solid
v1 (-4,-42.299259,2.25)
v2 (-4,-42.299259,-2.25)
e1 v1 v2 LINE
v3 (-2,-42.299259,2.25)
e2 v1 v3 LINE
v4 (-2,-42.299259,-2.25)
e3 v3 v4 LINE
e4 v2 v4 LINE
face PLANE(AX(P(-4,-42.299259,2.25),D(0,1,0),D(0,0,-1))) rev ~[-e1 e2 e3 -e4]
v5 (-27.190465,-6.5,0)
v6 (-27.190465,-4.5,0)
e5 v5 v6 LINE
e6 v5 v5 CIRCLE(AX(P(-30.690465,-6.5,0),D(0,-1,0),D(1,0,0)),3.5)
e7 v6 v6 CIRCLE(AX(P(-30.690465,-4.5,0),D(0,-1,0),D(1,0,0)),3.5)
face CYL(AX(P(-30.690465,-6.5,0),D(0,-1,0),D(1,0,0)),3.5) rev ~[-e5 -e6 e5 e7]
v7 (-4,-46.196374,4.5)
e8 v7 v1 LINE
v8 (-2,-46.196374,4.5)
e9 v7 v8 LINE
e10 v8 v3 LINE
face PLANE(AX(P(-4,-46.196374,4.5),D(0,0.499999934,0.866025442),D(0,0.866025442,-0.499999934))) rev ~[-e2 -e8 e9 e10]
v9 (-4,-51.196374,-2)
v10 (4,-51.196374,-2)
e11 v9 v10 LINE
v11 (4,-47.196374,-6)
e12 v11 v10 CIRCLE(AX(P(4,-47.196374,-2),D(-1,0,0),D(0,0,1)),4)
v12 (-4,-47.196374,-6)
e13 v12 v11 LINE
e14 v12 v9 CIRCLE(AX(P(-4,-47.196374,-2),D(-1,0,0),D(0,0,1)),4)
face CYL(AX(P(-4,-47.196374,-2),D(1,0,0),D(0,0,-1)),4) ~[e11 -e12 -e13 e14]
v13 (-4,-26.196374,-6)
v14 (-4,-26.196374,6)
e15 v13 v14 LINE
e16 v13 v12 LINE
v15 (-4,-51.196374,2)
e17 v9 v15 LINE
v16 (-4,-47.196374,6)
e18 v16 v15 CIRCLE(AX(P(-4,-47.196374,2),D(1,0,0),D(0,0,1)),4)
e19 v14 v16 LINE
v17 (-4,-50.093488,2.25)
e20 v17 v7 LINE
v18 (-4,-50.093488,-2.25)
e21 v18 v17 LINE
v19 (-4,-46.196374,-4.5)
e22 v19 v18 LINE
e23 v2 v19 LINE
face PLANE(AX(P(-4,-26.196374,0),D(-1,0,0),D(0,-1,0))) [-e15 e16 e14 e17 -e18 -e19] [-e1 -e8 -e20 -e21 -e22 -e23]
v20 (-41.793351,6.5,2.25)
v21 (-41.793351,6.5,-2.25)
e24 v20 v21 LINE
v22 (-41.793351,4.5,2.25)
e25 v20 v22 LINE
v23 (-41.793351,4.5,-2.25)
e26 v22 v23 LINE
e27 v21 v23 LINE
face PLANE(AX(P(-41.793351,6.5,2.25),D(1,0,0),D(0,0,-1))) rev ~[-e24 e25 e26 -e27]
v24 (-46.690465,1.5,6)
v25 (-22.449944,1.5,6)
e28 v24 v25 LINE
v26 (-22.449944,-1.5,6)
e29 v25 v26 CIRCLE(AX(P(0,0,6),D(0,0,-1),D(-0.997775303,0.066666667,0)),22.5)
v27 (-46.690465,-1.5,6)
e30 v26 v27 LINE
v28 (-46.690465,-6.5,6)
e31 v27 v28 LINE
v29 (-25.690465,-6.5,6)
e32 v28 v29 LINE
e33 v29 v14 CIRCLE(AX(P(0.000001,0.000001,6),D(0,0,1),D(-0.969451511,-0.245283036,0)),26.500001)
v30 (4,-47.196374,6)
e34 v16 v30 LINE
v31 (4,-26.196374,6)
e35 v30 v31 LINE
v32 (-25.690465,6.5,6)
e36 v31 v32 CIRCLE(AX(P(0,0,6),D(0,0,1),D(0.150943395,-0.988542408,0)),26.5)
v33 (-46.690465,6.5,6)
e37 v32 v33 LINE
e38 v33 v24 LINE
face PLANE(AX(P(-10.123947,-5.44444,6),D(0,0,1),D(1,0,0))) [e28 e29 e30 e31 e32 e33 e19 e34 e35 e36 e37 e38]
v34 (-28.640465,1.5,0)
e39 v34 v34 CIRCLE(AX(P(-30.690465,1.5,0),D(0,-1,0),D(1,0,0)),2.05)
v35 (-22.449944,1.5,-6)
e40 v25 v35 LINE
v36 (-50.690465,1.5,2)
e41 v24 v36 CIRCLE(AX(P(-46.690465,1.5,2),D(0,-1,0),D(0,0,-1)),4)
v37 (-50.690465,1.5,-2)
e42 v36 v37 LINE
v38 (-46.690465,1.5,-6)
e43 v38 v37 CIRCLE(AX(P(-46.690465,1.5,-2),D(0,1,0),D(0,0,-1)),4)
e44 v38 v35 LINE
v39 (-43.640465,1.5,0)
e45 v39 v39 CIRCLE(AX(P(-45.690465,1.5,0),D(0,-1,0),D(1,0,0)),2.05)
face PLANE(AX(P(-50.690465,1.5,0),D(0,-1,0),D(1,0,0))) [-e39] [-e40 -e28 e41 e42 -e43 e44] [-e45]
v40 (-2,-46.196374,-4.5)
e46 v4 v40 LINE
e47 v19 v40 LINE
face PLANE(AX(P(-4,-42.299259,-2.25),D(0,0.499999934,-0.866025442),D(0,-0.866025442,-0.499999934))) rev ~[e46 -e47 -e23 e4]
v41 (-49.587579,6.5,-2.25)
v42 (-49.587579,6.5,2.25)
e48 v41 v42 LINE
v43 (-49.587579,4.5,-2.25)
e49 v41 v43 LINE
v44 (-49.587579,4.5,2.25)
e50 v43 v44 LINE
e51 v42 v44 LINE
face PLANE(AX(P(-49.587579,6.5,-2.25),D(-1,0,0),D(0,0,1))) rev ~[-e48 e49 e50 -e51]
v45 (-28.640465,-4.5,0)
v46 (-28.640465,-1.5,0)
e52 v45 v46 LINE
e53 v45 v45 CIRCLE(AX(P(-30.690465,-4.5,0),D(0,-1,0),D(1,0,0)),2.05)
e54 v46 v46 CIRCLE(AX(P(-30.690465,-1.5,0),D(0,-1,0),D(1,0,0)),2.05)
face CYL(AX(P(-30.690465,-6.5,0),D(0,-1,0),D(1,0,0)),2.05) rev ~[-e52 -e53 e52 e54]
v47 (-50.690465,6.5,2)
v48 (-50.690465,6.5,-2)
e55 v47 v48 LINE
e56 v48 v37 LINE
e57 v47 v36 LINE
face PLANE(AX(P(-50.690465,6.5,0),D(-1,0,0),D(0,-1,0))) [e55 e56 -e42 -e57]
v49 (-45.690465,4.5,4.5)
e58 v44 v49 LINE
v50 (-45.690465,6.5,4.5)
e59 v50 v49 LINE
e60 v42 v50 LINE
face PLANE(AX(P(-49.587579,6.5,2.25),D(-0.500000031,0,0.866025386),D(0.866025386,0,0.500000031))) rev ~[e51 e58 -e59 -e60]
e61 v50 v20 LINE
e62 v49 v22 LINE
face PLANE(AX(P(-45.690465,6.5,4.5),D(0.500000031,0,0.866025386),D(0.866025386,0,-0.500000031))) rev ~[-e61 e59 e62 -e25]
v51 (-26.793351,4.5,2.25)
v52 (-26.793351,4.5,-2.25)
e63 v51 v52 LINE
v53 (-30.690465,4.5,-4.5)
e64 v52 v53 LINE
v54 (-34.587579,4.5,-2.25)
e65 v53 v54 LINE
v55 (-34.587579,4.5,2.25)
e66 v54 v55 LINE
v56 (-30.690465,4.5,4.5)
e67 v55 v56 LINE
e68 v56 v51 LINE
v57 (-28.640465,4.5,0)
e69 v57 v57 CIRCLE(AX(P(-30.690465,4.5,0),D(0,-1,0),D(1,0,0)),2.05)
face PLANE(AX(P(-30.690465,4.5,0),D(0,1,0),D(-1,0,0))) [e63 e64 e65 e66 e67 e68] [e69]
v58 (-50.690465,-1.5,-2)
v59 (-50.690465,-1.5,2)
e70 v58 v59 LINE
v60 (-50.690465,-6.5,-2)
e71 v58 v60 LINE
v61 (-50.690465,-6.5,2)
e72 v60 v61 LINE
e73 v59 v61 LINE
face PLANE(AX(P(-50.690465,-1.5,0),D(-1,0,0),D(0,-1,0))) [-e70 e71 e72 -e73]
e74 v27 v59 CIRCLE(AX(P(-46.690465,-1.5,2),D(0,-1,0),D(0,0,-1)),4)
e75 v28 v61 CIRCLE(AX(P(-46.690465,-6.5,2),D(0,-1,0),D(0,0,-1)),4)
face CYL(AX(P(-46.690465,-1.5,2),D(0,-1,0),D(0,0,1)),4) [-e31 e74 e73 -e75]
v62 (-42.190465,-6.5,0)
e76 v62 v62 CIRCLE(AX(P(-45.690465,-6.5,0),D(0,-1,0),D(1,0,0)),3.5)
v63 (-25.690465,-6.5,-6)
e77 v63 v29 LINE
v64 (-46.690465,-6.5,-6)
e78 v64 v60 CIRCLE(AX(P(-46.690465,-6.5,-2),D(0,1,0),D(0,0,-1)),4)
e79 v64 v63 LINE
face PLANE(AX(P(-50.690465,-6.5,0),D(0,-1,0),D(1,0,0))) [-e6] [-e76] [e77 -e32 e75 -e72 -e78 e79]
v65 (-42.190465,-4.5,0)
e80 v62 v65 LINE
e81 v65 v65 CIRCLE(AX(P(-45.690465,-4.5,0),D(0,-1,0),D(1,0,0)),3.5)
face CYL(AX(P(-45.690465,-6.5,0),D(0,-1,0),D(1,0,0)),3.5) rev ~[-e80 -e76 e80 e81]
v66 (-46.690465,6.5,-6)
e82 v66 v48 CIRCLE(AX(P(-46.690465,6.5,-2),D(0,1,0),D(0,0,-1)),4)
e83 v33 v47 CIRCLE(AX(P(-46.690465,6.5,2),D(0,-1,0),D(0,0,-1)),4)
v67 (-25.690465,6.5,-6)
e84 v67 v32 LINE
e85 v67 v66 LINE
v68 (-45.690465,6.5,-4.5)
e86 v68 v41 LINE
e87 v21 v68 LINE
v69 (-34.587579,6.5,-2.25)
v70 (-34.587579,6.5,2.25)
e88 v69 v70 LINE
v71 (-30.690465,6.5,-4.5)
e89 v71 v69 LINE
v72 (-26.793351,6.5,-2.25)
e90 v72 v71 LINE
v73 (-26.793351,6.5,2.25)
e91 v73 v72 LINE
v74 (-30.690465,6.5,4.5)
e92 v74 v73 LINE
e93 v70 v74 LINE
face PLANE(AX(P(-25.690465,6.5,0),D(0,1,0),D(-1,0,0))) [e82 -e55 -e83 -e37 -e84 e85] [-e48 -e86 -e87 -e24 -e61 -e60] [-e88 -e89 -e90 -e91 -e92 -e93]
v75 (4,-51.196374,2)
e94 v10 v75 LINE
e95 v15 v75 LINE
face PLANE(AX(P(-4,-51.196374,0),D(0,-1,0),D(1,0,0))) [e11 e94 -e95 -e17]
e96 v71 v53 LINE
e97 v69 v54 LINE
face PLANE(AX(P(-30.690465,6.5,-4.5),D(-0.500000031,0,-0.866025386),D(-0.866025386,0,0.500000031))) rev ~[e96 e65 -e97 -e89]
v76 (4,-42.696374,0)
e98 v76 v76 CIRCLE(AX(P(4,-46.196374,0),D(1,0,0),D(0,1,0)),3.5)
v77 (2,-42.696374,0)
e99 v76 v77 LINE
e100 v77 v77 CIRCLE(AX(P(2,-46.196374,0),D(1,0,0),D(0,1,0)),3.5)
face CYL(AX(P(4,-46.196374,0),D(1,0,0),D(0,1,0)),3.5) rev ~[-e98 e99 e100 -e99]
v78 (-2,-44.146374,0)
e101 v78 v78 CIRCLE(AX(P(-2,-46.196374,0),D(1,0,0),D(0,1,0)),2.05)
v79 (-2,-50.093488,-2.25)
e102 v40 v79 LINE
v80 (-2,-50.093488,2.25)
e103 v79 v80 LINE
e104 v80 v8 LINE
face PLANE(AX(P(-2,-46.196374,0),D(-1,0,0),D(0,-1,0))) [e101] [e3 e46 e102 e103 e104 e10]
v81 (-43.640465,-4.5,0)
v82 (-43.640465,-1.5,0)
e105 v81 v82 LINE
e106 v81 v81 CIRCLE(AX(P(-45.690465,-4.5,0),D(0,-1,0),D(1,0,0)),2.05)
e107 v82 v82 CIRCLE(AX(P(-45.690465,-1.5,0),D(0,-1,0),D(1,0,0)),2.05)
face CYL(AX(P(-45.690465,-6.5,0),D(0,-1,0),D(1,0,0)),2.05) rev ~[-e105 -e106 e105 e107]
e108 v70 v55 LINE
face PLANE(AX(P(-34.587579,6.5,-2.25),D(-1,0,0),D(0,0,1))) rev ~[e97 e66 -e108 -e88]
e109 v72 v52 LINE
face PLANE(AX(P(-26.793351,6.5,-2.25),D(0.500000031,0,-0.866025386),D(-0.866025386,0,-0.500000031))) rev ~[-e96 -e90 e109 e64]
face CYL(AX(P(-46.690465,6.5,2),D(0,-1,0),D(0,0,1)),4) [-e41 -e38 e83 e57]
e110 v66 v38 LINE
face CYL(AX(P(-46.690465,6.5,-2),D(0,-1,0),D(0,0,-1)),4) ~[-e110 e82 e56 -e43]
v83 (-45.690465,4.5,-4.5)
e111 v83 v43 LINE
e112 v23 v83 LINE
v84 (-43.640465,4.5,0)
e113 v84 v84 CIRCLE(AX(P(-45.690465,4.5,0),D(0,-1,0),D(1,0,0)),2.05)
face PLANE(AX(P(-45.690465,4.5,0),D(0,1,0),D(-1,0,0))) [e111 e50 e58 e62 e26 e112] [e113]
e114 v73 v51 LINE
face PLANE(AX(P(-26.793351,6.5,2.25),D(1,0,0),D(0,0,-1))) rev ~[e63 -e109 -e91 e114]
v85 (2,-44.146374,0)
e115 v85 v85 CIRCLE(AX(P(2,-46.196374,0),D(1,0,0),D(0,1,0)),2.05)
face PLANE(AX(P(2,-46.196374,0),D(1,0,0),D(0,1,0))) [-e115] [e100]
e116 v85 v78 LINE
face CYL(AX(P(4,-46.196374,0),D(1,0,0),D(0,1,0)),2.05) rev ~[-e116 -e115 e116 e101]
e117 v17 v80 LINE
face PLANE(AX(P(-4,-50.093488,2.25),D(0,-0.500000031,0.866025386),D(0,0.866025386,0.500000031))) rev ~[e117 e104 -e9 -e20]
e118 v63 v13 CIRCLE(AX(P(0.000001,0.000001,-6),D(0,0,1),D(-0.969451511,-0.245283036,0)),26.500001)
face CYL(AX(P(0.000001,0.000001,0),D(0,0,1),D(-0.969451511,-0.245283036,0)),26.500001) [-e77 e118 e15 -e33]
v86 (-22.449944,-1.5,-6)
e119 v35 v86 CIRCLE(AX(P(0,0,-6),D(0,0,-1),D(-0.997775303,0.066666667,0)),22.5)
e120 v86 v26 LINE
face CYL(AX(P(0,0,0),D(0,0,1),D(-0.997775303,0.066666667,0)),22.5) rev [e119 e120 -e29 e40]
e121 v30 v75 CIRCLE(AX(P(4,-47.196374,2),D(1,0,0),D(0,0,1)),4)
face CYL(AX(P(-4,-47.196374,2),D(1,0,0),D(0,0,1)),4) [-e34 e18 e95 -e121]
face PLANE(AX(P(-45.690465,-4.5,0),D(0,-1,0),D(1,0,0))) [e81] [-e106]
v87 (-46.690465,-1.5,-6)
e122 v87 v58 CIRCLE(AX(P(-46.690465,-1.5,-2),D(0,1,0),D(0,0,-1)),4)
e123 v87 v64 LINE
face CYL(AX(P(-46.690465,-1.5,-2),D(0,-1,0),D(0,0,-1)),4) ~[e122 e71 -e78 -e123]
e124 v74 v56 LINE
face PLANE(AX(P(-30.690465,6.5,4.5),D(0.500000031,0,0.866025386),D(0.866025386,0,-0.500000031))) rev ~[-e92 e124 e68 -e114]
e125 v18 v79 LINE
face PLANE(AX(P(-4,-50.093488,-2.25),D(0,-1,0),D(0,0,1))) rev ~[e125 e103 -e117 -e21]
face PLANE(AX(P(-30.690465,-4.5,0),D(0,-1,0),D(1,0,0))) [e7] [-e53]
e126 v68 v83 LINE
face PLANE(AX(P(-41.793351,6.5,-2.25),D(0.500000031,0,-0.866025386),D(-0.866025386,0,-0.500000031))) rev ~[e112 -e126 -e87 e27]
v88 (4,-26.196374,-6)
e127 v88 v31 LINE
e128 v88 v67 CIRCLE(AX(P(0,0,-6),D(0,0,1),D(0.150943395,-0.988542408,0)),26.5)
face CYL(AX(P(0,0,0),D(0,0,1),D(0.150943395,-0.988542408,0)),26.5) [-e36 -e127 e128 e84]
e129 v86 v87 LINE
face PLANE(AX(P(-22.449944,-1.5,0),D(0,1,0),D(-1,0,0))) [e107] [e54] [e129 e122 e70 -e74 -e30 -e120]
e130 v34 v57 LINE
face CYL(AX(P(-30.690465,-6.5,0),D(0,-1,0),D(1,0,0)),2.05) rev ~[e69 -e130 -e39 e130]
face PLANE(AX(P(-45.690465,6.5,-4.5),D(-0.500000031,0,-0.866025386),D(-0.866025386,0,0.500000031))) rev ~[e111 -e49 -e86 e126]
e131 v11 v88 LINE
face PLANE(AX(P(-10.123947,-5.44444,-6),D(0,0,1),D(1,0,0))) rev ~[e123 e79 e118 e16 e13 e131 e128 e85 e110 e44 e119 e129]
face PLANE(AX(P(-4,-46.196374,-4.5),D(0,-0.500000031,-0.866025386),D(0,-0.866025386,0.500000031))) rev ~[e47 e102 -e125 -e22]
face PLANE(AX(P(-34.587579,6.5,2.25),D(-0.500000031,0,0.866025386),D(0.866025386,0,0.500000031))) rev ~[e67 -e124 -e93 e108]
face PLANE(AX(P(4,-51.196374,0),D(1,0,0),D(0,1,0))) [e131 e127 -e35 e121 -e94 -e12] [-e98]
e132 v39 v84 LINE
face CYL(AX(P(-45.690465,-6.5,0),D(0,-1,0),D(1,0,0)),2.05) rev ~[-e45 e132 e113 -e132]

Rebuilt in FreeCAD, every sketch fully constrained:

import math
import FreeCAD as App
import Part
import Sketcher
from FreeCAD import Vector
Q = App.Units.Quantity


def edges_at(feature, points):
    """Names of the edges that pass closest to the given points."""
    edges = feature.Shape.Edges
    near = lambda p: min(range(len(edges)), key=lambda i: edges[i].distToShape(Part.Vertex(*p))[0])
    return sorted({f"Edge{near(p) + 1}" for p in points})


def add_polygon(sketch, points):
    """Adds a closed chain of lines whose ends are joined by coincident constraints."""
    first, n = sketch.GeometryCount, len(points)
    for a, b in zip(points, points[1:] + points[:1]):
        sketch.addGeometry(Part.LineSegment(App.Vector(*a, 0), App.Vector(*b, 0)), False)
    for i in range(n):
        sketch.addConstraint(Sketcher.Constraint("Coincident", first + i, 2, first + (i + 1) % n, 1))

doc = App.newDocument("Part")
body = doc.addObject("PartDesign::Body", "Body")

# Sketch on XY plane
sketch1 = body.newObject("Sketcher::SketchObject", "Sketch")
sketch1.AttachmentSupport = (doc.getObject("XY_Plane"), [""])
sketch1.MapMode = "FlatFace"
sketch1.addGeometry([
    Part.ArcOfCircle(Part.Circle(Vector(0, 0, 0), Vector(0, 0, 1), 22.5), math.radians(-176), math.radians(176)),  # 0
    Part.LineSegment(Vector(-22.4, -1.5, 0), Vector(-50.7, -1.5, 0)),  # 1
    Part.LineSegment(Vector(-50.7, -1.5, 0), Vector(-50.7, -6.5, 0)),  # 2
    Part.LineSegment(Vector(-50.7, -6.5, 0), Vector(-25.7, -6.5, 0)),  # 3
    Part.ArcOfCircle(Part.Circle(Vector(0, 0, 0), Vector(0, 0, 1), 26.5), math.radians(-166), math.radians(-99)),  # 4
    Part.LineSegment(Vector(-4, -26.2, 0), Vector(-4, -51.2, 0)),  # 5
    Part.LineSegment(Vector(-4, -51.2, 0), Vector(4, -51.2, 0)),  # 6
    Part.LineSegment(Vector(4, -51.2, 0), Vector(4, -26.2, 0)),  # 7
    Part.ArcOfCircle(Part.Circle(Vector(0, 0, 0), Vector(0, 0, 1), 26.5), math.radians(-81), math.radians(166)),  # 8
    Part.LineSegment(Vector(-25.7, 6.5, 0), Vector(-50.7, 6.5, 0)),  # 9
    Part.LineSegment(Vector(-50.7, 6.5, 0), Vector(-50.7, 1.5, 0)),  # 10
    Part.LineSegment(Vector(-50.7, 1.5, 0), Vector(-22.4, 1.5, 0)),  # 11
], False)
sketch1.addConstraint([
    Sketcher.Constraint("Coincident", 0, 1, 1, 1),
    Sketcher.Constraint("Coincident", 1, 2, 2, 1),
    Sketcher.Constraint("Coincident", 2, 2, 3, 1),
    Sketcher.Constraint("Coincident", 3, 2, 4, 1),
    Sketcher.Constraint("Coincident", 4, 2, 5, 1),
    Sketcher.Constraint("Coincident", 5, 2, 6, 1),
    Sketcher.Constraint("Coincident", 6, 2, 7, 1),
    Sketcher.Constraint("Coincident", 7, 2, 8, 1),
    Sketcher.Constraint("Coincident", 8, 2, 9, 1),
    Sketcher.Constraint("Coincident", 9, 2, 10, 1),
    Sketcher.Constraint("Coincident", 10, 2, 11, 1),
    Sketcher.Constraint("Coincident", 11, 2, 0, 2),
    Sketcher.Constraint("Horizontal", 1),
    Sketcher.Constraint("Vertical", 2),
    Sketcher.Constraint("Horizontal", 3),
    Sketcher.Constraint("Vertical", 5),
    Sketcher.Constraint("Horizontal", 6),
    Sketcher.Constraint("Vertical", 7),
    Sketcher.Constraint("Horizontal", 9),
    Sketcher.Constraint("Vertical", 10),
    Sketcher.Constraint("Horizontal", 11),
    Sketcher.Constraint("Coincident", 0, 3, -1, 1),
    Sketcher.Constraint("Coincident", 4, 3, -1, 1),
    Sketcher.Constraint("Coincident", 8, 3, -1, 1),
    Sketcher.Constraint("Equal", 4, 8),
    Sketcher.Constraint("Symmetric", 2, 2, 9, 2, -1),
    Sketcher.Constraint("Horizontal", 4, 2, 7, 2),
    Sketcher.Constraint("Vertical", 0, 1, 11, 2),
    Sketcher.Constraint("Equal", 9, 5),
    Sketcher.Constraint("Radius", 0, 22.5),
    Sketcher.Constraint("Radius", 4, 26.500001),
    Sketcher.Constraint("DistanceX", 3, 1, 3, 2, 25.0),
    Sketcher.Constraint("DistanceX", 6, 1, 6, 2, 8.0),
    Sketcher.Constraint("DistanceY", 2, 2, 2, 1, 5.0),
    Sketcher.Constraint("DistanceY", 0, 1, 8, 2, 8.0),
])
pad1 = body.newObject("PartDesign::Pad", "Pad")
pad1.Profile = sketch1
pad1.Length = 12
pad1.Midplane = True

# Sketch on YZ plane
sketch2 = body.newObject("Sketcher::SketchObject", "Sketch001")
sketch2.AttachmentSupport = (doc.getObject("YZ_Plane"), [""])
sketch2.MapMode = "FlatFace"
sketch2.AttachmentOffset = App.Placement(Vector(0, 0, -4), App.Rotation())
add_polygon(sketch2, [(-50.1, -2.2), (-50.1, 2.2), (-46.2, 4.5), (-42.3, 2.2), (-42.3, -2.2), (-46.2, -4.5)])  # lines 0-5
sketch2.addConstraint([
    Sketcher.Constraint("Vertical", 0),
    Sketcher.Constraint("Vertical", 3),
    Sketcher.Constraint("Symmetric", 1, 2, 4, 2, -1),
    Sketcher.Constraint("Parallel", 1, 4),
    Sketcher.Constraint("Parallel", 2, 5),
    Sketcher.Constraint("Horizontal", 0, 2, 2, 2),
    Sketcher.Constraint("Horizontal", 3, 2, 5, 2),
    Sketcher.Constraint("Angle", 1, Q("30.000002 deg")),
    Sketcher.Constraint("DistanceY", 0, 1, 0, 2, 4.5),
    Sketcher.Constraint("DistanceY", 4, 2, 1, 2, 9.0),
    Sketcher.Constraint("DistanceX", 2, 2, -1, 1, 42.299259),
])
pocket1 = body.newObject("PartDesign::Pocket", "Pocket")
pocket1.Profile = sketch2
pocket1.Length = 2
pocket1.Reversed = True

# Sketch on XZ plane
sketch3 = body.newObject("Sketcher::SketchObject", "Sketch002")
sketch3.AttachmentSupport = (doc.getObject("XZ_Plane"), [""])
sketch3.MapMode = "FlatFace"
sketch3.AttachmentOffset = App.Placement(Vector(0, 0, -6.5), App.Rotation())
add_polygon(sketch3, [(-49.6, -2.2), (-49.6, 2.2), (-45.7, 4.5), (-41.8, 2.2), (-41.8, -2.2), (-45.7, -4.5)])  # lines 0-5
add_polygon(sketch3, [(-34.6, 2.2), (-30.7, 4.5), (-26.8, 2.2), (-26.8, -2.2), (-30.7, -4.5), (-34.6, -2.2)])  # lines 6-11
sketch3.addConstraint([
    Sketcher.Constraint("Vertical", 0),
    Sketcher.Constraint("Vertical", 3),
    Sketcher.Constraint("Vertical", 8),
    Sketcher.Constraint("Vertical", 11),
    Sketcher.Constraint("Symmetric", 1, 2, 4, 2, -1),
    Sketcher.Constraint("Symmetric", 6, 2, 9, 2, -1),
    Sketcher.Constraint("Parallel", 1, 4),
    Sketcher.Constraint("Parallel", 2, 5),
    Sketcher.Constraint("Parallel", 4, 6),
    Sketcher.Constraint("Parallel", 5, 7),
    Sketcher.Constraint("Parallel", 6, 9),
    Sketcher.Constraint("Parallel", 7, 10),
    Sketcher.Constraint("Horizontal", 0, 2, 2, 2),
    Sketcher.Constraint("Horizontal", 3, 2, 5, 2),
    Sketcher.Constraint("Horizontal", 1, 2, 6, 2),
    Sketcher.Constraint("Horizontal", 2, 2, 7, 2),
    Sketcher.Constraint("Horizontal", 8, 2, 10, 2),
    Sketcher.Constraint("Angle", 1, Q("30.000002 deg")),
    Sketcher.Constraint("DistanceY", 0, 1, 0, 2, 4.5),
    Sketcher.Constraint("DistanceY", 4, 2, 1, 2, 9.0),
    Sketcher.Constraint("DistanceX", 1, 2, 6, 2, 15.0),
    Sketcher.Constraint("DistanceX", 0, 2, -1, 1, 49.587579),
])
pocket2 = body.newObject("PartDesign::Pocket", "Pocket001")
pocket2.Profile = sketch3
pocket2.Length = 2
pocket2.Reversed = True

# Sketch on XZ plane
sketch4 = body.newObject("Sketcher::SketchObject", "Sketch003")
sketch4.AttachmentSupport = (doc.getObject("XZ_Plane"), [""])
sketch4.MapMode = "FlatFace"
sketch4.AttachmentOffset = App.Placement(Vector(0, 0, 6.5), App.Rotation())
sketch4.addGeometry([
    Part.Circle(Vector(-45.7, 0, 0), Vector(0, 0, 1), 2),
    Part.Circle(Vector(-30.7, 0, 0), Vector(0, 0, 1), 2),
], False)
sketch4.addConstraint([
    Sketcher.Constraint("Equal", 0, 1),
    Sketcher.Constraint("PointOnObject", 0, 3, -1),
    Sketcher.Constraint("PointOnObject", 1, 3, -1),
    Sketcher.Constraint("Diameter", 0, 4.1),
    Sketcher.Constraint("DistanceX", 0, 3, 1, 3, 15.0),
    Sketcher.Constraint("DistanceX", 0, 3, -1, 1, 45.690465),
])
pocket3 = body.newObject("PartDesign::Pocket", "Pocket002")
pocket3.Profile = sketch4
pocket3.Type = "ThroughAll"

# Sketch on XZ plane
sketch5 = body.newObject("Sketcher::SketchObject", "Sketch004")
sketch5.AttachmentSupport = (doc.getObject("XZ_Plane"), [""])
sketch5.MapMode = "FlatFace"
sketch5.AttachmentOffset = App.Placement(Vector(0, 0, 6.5), App.Rotation())
sketch5.addGeometry([
    Part.Circle(Vector(-45.7, 0, 0), Vector(0, 0, 1), 3.5),
    Part.Circle(Vector(-45.7, 0, 0), Vector(0, 0, 1), 2),
    Part.Circle(Vector(-30.7, 0, 0), Vector(0, 0, 1), 3.5),
    Part.Circle(Vector(-30.7, 0, 0), Vector(0, 0, 1), 2),
], False)
sketch5.addConstraint([
    Sketcher.Constraint("Coincident", 1, 3, 0, 3),
    Sketcher.Constraint("Coincident", 3, 3, 2, 3),
    Sketcher.Constraint("Equal", 0, 2),
    Sketcher.Constraint("Equal", 1, 3),
    Sketcher.Constraint("PointOnObject", 0, 3, -1),
    Sketcher.Constraint("PointOnObject", 2, 3, -1),
    Sketcher.Constraint("Diameter", 0, 7.0),
    Sketcher.Constraint("Diameter", 1, 4.1),
    Sketcher.Constraint("DistanceX", 0, 3, 2, 3, 15.0),
    Sketcher.Constraint("DistanceX", 0, 3, -1, 1, 45.690465),
])
pocket4 = body.newObject("PartDesign::Pocket", "Pocket003")
pocket4.Profile = sketch5
pocket4.Length = 2

# Sketch on YZ plane
sketch6 = body.newObject("Sketcher::SketchObject", "Sketch005")
sketch6.AttachmentSupport = (doc.getObject("YZ_Plane"), [""])
sketch6.MapMode = "FlatFace"
sketch6.AttachmentOffset = App.Placement(Vector(0, 0, 4), App.Rotation())
sketch6.addGeometry(Part.Circle(Vector(-46.2, 0, 0), Vector(0, 0, 1), 2), False)
sketch6.addConstraint([
    Sketcher.Constraint("PointOnObject", 0, 3, -1),
    Sketcher.Constraint("Diameter", 0, 4.1),
    Sketcher.Constraint("DistanceX", 0, 3, -1, 1, 46.196374),
])
pocket5 = body.newObject("PartDesign::Pocket", "Pocket004")
pocket5.Profile = sketch6
pocket5.Type = "ThroughAll"

# Sketch on YZ plane
sketch7 = body.newObject("Sketcher::SketchObject", "Sketch006")
sketch7.AttachmentSupport = (doc.getObject("YZ_Plane"), [""])
sketch7.MapMode = "FlatFace"
sketch7.AttachmentOffset = App.Placement(Vector(0, 0, 4), App.Rotation())
sketch7.addGeometry([
    Part.Circle(Vector(-46.2, 0, 0), Vector(0, 0, 1), 3.5),
    Part.Circle(Vector(-46.2, 0, 0), Vector(0, 0, 1), 2),
], False)
sketch7.addConstraint([
    Sketcher.Constraint("Coincident", 1, 3, 0, 3),
    Sketcher.Constraint("PointOnObject", 0, 3, -1),
    Sketcher.Constraint("Diameter", 0, 7.0),
    Sketcher.Constraint("Diameter", 1, 4.1),
    Sketcher.Constraint("DistanceX", 0, 3, -1, 1, 46.196374),
])
pocket6 = body.newObject("PartDesign::Pocket", "Pocket005")
pocket6.Profile = sketch7
pocket6.Length = 2
doc.recompute()

fillet = body.newObject("PartDesign::Fillet", "Fillet")
fillet.Base = (pocket6, edges_at(pocket6, [
    (-50.69, 4, 6),
    (-50.69, 4, -6),
    (-50.69, -4, 6),
    (-50.69, -4, -6),
    (0, -51.196, 6),
    (0, -51.196, -6),
]))
fillet.Radius = 4

doc.recompute()
